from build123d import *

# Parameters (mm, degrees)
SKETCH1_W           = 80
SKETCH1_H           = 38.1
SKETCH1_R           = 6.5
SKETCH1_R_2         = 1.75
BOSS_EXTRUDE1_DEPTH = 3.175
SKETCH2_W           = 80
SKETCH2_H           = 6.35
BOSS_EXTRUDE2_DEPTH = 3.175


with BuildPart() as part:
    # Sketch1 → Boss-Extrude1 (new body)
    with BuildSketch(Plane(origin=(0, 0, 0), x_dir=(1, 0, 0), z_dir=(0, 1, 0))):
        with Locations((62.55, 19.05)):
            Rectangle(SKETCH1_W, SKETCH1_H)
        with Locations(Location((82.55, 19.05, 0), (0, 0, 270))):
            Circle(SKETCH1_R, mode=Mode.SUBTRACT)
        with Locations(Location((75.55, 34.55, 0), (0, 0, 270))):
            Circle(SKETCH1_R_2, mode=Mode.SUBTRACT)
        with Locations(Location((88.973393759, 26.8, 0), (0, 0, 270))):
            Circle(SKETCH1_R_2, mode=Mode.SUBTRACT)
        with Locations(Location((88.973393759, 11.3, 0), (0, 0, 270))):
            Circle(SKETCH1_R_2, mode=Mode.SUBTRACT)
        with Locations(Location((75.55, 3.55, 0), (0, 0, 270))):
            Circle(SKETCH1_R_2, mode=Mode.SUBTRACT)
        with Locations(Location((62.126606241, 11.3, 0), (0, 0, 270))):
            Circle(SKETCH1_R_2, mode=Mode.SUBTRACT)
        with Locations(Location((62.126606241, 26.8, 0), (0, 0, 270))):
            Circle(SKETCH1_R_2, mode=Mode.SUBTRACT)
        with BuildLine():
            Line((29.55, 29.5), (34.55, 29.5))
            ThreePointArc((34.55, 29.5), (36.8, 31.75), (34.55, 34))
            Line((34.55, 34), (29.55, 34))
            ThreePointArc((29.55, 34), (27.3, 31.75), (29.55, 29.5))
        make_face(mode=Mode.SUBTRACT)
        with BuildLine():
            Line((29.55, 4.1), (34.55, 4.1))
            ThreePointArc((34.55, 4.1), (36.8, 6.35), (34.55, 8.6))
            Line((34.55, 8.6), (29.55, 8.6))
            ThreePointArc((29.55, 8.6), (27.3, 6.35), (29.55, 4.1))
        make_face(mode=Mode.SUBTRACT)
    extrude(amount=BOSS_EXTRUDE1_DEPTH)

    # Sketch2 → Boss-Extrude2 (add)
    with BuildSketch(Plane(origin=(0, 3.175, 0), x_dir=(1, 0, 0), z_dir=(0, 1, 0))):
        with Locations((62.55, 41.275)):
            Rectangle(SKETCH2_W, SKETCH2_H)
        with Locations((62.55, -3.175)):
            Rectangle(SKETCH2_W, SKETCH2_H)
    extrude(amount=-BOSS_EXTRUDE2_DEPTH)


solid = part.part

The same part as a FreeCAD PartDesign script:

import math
import FreeCAD as App
import Part
import Sketcher
from FreeCAD import Vector
Q = App.Units.Quantity

doc = App.newDocument("Part")
body = doc.addObject("PartDesign::Body", "Body")

# Sketch on XZ plane
sketch1 = doc.addObject("Sketcher::SketchObject", "Sketch")
body.addObject(sketch1)
sketch1.AttachmentSupport = (doc.XZ_Plane, [""])
sketch1.MapMode = "FlatFace"
sketch1.addGeometry([
    Part.LineSegment(Vector(22.6, -38.1, 0), Vector(22.6, 0, 0)),  # 0
    Part.LineSegment(Vector(22.6, 0, 0), Vector(102.5, 0, 0)),  # 1
    Part.LineSegment(Vector(102.5, 0, 0), Vector(102.5, -38.1, 0)),  # 2
    Part.LineSegment(Vector(102.5, -38.1, 0), Vector(22.6, -38.1, 0)),  # 3
    Part.LineSegment(Vector(34.5, -4.1, 0), Vector(29.6, -4.1, 0)),  # 4
    Part.ArcOfCircle(Part.Circle(Vector(29.6, -6.3, 0), Vector(0, 0, 1), 2.2), math.radians(90), math.radians(270)),  # 5
    Part.LineSegment(Vector(29.6, -8.6, 0), Vector(34.5, -8.6, 0)),  # 6
    Part.ArcOfCircle(Part.Circle(Vector(34.5, -6.3, 0), Vector(0, 0, 1), 2.2), math.radians(-90), math.radians(90)),  # 7
    Part.Circle(Vector(75.5, -3.5, 0), Vector(0, 0, 1), 1.8),  # 8
    Part.Circle(Vector(62.1, -11.3, 0), Vector(0, 0, 1), 1.8),  # 9
    Part.Circle(Vector(89, -11.3, 0), Vector(0, 0, 1), 1.8),  # 10
    Part.LineSegment(Vector(34.5, -29.5, 0), Vector(29.6, -29.5, 0)),  # 11
    Part.ArcOfCircle(Part.Circle(Vector(29.6, -31.8, 0), Vector(0, 0, 1), 2.2), math.radians(90), math.radians(270)),  # 12
    Part.LineSegment(Vector(29.6, -34, 0), Vector(34.5, -34, 0)),  # 13
    Part.ArcOfCircle(Part.Circle(Vector(34.5, -31.8, 0), Vector(0, 0, 1), 2.2), math.radians(-90), math.radians(90)),  # 14
    Part.Circle(Vector(62.1, -26.8, 0), Vector(0, 0, 1), 1.8),  # 15
    Part.Circle(Vector(82.5, -19.1, 0), Vector(0, 0, 1), 6.5),  # 16
    Part.Circle(Vector(89, -26.8, 0), Vector(0, 0, 1), 1.8),  # 17
    Part.Circle(Vector(75.5, -34.5, 0), Vector(0, 0, 1), 1.8),  # 18
], False)
sketch1.addConstraint([
    Sketcher.Constraint("Coincident", 0, 2, 1, 1),
    Sketcher.Constraint("Coincident", 1, 2, 2, 1),
    Sketcher.Constraint("Coincident", 2, 2, 3, 1),
    Sketcher.Constraint("Coincident", 3, 2, 0, 1),
    Sketcher.Constraint("Tangent", 4, 2, 5, 1),
    Sketcher.Constraint("Tangent", 5, 2, 6, 1),
    Sketcher.Constraint("Tangent", 6, 2, 7, 1),
    Sketcher.Constraint("Tangent", 7, 2, 4, 1),
    Sketcher.Constraint("Tangent", 11, 2, 12, 1),
    Sketcher.Constraint("Tangent", 12, 2, 13, 1),
    Sketcher.Constraint("Tangent", 13, 2, 14, 1),
    Sketcher.Constraint("Tangent", 14, 2, 11, 1),
    Sketcher.Constraint("Vertical", 0),
    Sketcher.Constraint("Horizontal", 1),
    Sketcher.Constraint("Vertical", 2),
    Sketcher.Constraint("Horizontal", 3),
    Sketcher.Constraint("Horizontal", 4),
    Sketcher.Constraint("Horizontal", 6),
    Sketcher.Constraint("Horizontal", 11),
    Sketcher.Constraint("Horizontal", 13),
    Sketcher.Constraint("Equal", 8, 9),
    Sketcher.Constraint("Equal", 9, 10),
    Sketcher.Constraint("Equal", 7, 12),
    Sketcher.Constraint("Equal", 10, 15),
    Sketcher.Constraint("Equal", 15, 17),
    Sketcher.Constraint("Equal", 17, 18),
    Sketcher.Constraint("PointOnObject", 0, 2, -1),
    Sketcher.Constraint("Horizontal", 9, 3, 10, 3),
    Sketcher.Constraint("Horizontal", 15, 3, 17, 3),
    Sketcher.Constraint("Vertical", 5, 3, 12, 3),
    Sketcher.Constraint("Vertical", 7, 3, 14, 3),
    Sketcher.Constraint("Vertical", 9, 3, 15, 3),
    Sketcher.Constraint("Vertical", 10, 3, 17, 3),
    Sketcher.Constraint("Vertical", 8, 3, 18, 3),
    Sketcher.Constraint("Diameter", 16, Q("13 mm")),
    Sketcher.Constraint("Diameter", 8, Q("3.5 mm")),
    Sketcher.Constraint("DistanceX", 1, 1, 1, 2, Q("80 mm")),
    Sketcher.Constraint("DistanceX", 4, 2, 4, 1, Q("5 mm")),
    Sketcher.Constraint("Radius", 5, Q("2.25 mm")),
    Sketcher.Constraint("DistanceY", 0, 1, 0, 2, Q("38.1 mm")),
    Sketcher.Constraint("DistanceY", 12, 2, -1, 1, Q("34 mm")),
    Sketcher.Constraint("DistanceX", 7, 3, 8, 3, Q("41 mm")),
    Sketcher.Constraint("DistanceX", 8, 3, 16, 3, Q("7 mm")),
    Sketcher.Constraint("DistanceX", 0, 2, 5, 3, Q("7 mm")),
    Sketcher.Constraint("DistanceY", 9, 3, -1, 1, Q("11.3 mm")),
    Sketcher.Constraint("DistanceY", 15, 3, -1, 1, Q("26.8 mm")),
    Sketcher.Constraint("DistanceY", 4, 2, -1, 1, Q("4.1 mm")),
    Sketcher.Constraint("DistanceY", 7, 3, 8, 3, Q("2.8 mm")),
    Sketcher.Constraint("DistanceY", 16, 3, 8, 3, Q("15.5 mm")),
    Sketcher.Constraint("DistanceY", 18, 3, 16, 3, Q("15.5 mm")),
    Sketcher.Constraint("DistanceX", -1, 1, 5, 3, Q("29.55 mm")),
    Sketcher.Constraint("DistanceX", -1, 1, 9, 3, Q("62.126606 mm")),
    Sketcher.Constraint("DistanceX", -1, 1, 10, 3, Q("88.973394 mm")),
])
pad1 = doc.addObject("PartDesign::Pad", "Pad")
body.addObject(pad1)
pad1.Profile = sketch1
pad1.Length = 3.175
pad1.Reversed = True

# Sketch on XZ plane
sketch2 = doc.addObject("Sketcher::SketchObject", "Sketch001")
body.addObject(sketch2)
sketch2.AttachmentSupport = (doc.XZ_Plane, [""])
sketch2.MapMode = "FlatFace"
sketch2.AttachmentOffset = App.Placement(Vector(0, 0, -3.175), App.Rotation())
sketch2.addGeometry([
    Part.LineSegment(Vector(23, -44, 0), Vector(23, -38, 0)),  # 0
    Part.LineSegment(Vector(23, -38, 0), Vector(103, -38, 0)),  # 1
    Part.LineSegment(Vector(103, -38, 0), Vector(103, -44, 0)),  # 2
    Part.LineSegment(Vector(103, -44, 0), Vector(23, -44, 0)),  # 3
    Part.LineSegment(Vector(23, 0, 0), Vector(23, 6, 0)),  # 4
    Part.LineSegment(Vector(23, 6, 0), Vector(103, 6, 0)),  # 5
    Part.LineSegment(Vector(103, 6, 0), Vector(103, 0, 0)),  # 6
    Part.LineSegment(Vector(103, 0, 0), Vector(23, 0, 0)),  # 7
], False)
sketch2.addConstraint([
    Sketcher.Constraint("Coincident", 0, 2, 1, 1),
    Sketcher.Constraint("Coincident", 1, 2, 2, 1),
    Sketcher.Constraint("Coincident", 2, 2, 3, 1),
    Sketcher.Constraint("Coincident", 3, 2, 0, 1),
    Sketcher.Constraint("Coincident", 4, 2, 5, 1),
    Sketcher.Constraint("Coincident", 5, 2, 6, 1),
    Sketcher.Constraint("Coincident", 6, 2, 7, 1),
    Sketcher.Constraint("Coincident", 7, 2, 4, 1),
    Sketcher.Constraint("Vertical", 0),
    Sketcher.Constraint("Horizontal", 1),
    Sketcher.Constraint("Vertical", 2),
    Sketcher.Constraint("Horizontal", 3),
    Sketcher.Constraint("Vertical", 4),
    Sketcher.Constraint("Horizontal", 5),
    Sketcher.Constraint("Vertical", 6),
    Sketcher.Constraint("Horizontal", 7),
    Sketcher.Constraint("PointOnObject", 6, 2, -1),
    Sketcher.Constraint("Vertical", 3, 2, 4, 2),
    Sketcher.Constraint("Vertical", 2, 2, 5, 2),
    Sketcher.Constraint("Equal", 2, 4),
    Sketcher.Constraint("DistanceX", 1, 1, 1, 2, Q("80 mm")),
    Sketcher.Constraint("DistanceY", 0, 1, 0, 2, Q("6.35 mm")),
    Sketcher.Constraint("DistanceY", 0, 2, -1, 1, Q("38.1 mm")),
    Sketcher.Constraint("DistanceX", -1, 1, 0, 2, Q("22.55 mm")),
])
pad2 = doc.addObject("PartDesign::Pad", "Pad001")
body.addObject(pad2)
pad2.Profile = sketch2
pad2.Length = 3.175

doc.recompute()
